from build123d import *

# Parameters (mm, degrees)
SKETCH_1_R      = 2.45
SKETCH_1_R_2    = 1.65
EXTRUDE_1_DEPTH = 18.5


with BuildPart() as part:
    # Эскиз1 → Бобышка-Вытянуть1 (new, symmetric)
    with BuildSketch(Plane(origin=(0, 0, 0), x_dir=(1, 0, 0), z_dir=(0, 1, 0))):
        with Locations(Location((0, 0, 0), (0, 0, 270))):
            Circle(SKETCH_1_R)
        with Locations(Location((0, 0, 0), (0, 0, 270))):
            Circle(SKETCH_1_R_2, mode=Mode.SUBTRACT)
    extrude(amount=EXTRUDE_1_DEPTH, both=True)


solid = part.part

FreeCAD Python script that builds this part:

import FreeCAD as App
import Part
import Sketcher
from FreeCAD import Vector

doc = App.newDocument("Part")
body = doc.addObject("PartDesign::Body", "Body")

sketch1 = doc.addObject("Sketcher::SketchObject", "Sketch")
body.addObject(sketch1)
sketch1.AttachmentSupport = (doc.XZ_Plane, [""])
sketch1.MapMode = "FlatFace"
sketch1.addGeometry([
    Part.Circle(Vector(0, 0, 0), Vector(0, 0, 1), 2.5),
    Part.Circle(Vector(0, 0, 0), Vector(0, 0, 1), 1.6),
], False)
sketch1.addConstraint([
    Sketcher.Constraint("Coincident", 0, 3, -1, 1),
    Sketcher.Constraint("Coincident", 1, 3, -1, 1),
    Sketcher.Constraint("Diameter", 0, 4.9),
    Sketcher.Constraint("Diameter", 1, 3.3),
])
pad1 = doc.addObject("PartDesign::Pad", "Pad")
body.addObject(pad1)
pad1.Profile = sketch1
pad1.Length = 37
pad1.Midplane = True

doc.recompute()
